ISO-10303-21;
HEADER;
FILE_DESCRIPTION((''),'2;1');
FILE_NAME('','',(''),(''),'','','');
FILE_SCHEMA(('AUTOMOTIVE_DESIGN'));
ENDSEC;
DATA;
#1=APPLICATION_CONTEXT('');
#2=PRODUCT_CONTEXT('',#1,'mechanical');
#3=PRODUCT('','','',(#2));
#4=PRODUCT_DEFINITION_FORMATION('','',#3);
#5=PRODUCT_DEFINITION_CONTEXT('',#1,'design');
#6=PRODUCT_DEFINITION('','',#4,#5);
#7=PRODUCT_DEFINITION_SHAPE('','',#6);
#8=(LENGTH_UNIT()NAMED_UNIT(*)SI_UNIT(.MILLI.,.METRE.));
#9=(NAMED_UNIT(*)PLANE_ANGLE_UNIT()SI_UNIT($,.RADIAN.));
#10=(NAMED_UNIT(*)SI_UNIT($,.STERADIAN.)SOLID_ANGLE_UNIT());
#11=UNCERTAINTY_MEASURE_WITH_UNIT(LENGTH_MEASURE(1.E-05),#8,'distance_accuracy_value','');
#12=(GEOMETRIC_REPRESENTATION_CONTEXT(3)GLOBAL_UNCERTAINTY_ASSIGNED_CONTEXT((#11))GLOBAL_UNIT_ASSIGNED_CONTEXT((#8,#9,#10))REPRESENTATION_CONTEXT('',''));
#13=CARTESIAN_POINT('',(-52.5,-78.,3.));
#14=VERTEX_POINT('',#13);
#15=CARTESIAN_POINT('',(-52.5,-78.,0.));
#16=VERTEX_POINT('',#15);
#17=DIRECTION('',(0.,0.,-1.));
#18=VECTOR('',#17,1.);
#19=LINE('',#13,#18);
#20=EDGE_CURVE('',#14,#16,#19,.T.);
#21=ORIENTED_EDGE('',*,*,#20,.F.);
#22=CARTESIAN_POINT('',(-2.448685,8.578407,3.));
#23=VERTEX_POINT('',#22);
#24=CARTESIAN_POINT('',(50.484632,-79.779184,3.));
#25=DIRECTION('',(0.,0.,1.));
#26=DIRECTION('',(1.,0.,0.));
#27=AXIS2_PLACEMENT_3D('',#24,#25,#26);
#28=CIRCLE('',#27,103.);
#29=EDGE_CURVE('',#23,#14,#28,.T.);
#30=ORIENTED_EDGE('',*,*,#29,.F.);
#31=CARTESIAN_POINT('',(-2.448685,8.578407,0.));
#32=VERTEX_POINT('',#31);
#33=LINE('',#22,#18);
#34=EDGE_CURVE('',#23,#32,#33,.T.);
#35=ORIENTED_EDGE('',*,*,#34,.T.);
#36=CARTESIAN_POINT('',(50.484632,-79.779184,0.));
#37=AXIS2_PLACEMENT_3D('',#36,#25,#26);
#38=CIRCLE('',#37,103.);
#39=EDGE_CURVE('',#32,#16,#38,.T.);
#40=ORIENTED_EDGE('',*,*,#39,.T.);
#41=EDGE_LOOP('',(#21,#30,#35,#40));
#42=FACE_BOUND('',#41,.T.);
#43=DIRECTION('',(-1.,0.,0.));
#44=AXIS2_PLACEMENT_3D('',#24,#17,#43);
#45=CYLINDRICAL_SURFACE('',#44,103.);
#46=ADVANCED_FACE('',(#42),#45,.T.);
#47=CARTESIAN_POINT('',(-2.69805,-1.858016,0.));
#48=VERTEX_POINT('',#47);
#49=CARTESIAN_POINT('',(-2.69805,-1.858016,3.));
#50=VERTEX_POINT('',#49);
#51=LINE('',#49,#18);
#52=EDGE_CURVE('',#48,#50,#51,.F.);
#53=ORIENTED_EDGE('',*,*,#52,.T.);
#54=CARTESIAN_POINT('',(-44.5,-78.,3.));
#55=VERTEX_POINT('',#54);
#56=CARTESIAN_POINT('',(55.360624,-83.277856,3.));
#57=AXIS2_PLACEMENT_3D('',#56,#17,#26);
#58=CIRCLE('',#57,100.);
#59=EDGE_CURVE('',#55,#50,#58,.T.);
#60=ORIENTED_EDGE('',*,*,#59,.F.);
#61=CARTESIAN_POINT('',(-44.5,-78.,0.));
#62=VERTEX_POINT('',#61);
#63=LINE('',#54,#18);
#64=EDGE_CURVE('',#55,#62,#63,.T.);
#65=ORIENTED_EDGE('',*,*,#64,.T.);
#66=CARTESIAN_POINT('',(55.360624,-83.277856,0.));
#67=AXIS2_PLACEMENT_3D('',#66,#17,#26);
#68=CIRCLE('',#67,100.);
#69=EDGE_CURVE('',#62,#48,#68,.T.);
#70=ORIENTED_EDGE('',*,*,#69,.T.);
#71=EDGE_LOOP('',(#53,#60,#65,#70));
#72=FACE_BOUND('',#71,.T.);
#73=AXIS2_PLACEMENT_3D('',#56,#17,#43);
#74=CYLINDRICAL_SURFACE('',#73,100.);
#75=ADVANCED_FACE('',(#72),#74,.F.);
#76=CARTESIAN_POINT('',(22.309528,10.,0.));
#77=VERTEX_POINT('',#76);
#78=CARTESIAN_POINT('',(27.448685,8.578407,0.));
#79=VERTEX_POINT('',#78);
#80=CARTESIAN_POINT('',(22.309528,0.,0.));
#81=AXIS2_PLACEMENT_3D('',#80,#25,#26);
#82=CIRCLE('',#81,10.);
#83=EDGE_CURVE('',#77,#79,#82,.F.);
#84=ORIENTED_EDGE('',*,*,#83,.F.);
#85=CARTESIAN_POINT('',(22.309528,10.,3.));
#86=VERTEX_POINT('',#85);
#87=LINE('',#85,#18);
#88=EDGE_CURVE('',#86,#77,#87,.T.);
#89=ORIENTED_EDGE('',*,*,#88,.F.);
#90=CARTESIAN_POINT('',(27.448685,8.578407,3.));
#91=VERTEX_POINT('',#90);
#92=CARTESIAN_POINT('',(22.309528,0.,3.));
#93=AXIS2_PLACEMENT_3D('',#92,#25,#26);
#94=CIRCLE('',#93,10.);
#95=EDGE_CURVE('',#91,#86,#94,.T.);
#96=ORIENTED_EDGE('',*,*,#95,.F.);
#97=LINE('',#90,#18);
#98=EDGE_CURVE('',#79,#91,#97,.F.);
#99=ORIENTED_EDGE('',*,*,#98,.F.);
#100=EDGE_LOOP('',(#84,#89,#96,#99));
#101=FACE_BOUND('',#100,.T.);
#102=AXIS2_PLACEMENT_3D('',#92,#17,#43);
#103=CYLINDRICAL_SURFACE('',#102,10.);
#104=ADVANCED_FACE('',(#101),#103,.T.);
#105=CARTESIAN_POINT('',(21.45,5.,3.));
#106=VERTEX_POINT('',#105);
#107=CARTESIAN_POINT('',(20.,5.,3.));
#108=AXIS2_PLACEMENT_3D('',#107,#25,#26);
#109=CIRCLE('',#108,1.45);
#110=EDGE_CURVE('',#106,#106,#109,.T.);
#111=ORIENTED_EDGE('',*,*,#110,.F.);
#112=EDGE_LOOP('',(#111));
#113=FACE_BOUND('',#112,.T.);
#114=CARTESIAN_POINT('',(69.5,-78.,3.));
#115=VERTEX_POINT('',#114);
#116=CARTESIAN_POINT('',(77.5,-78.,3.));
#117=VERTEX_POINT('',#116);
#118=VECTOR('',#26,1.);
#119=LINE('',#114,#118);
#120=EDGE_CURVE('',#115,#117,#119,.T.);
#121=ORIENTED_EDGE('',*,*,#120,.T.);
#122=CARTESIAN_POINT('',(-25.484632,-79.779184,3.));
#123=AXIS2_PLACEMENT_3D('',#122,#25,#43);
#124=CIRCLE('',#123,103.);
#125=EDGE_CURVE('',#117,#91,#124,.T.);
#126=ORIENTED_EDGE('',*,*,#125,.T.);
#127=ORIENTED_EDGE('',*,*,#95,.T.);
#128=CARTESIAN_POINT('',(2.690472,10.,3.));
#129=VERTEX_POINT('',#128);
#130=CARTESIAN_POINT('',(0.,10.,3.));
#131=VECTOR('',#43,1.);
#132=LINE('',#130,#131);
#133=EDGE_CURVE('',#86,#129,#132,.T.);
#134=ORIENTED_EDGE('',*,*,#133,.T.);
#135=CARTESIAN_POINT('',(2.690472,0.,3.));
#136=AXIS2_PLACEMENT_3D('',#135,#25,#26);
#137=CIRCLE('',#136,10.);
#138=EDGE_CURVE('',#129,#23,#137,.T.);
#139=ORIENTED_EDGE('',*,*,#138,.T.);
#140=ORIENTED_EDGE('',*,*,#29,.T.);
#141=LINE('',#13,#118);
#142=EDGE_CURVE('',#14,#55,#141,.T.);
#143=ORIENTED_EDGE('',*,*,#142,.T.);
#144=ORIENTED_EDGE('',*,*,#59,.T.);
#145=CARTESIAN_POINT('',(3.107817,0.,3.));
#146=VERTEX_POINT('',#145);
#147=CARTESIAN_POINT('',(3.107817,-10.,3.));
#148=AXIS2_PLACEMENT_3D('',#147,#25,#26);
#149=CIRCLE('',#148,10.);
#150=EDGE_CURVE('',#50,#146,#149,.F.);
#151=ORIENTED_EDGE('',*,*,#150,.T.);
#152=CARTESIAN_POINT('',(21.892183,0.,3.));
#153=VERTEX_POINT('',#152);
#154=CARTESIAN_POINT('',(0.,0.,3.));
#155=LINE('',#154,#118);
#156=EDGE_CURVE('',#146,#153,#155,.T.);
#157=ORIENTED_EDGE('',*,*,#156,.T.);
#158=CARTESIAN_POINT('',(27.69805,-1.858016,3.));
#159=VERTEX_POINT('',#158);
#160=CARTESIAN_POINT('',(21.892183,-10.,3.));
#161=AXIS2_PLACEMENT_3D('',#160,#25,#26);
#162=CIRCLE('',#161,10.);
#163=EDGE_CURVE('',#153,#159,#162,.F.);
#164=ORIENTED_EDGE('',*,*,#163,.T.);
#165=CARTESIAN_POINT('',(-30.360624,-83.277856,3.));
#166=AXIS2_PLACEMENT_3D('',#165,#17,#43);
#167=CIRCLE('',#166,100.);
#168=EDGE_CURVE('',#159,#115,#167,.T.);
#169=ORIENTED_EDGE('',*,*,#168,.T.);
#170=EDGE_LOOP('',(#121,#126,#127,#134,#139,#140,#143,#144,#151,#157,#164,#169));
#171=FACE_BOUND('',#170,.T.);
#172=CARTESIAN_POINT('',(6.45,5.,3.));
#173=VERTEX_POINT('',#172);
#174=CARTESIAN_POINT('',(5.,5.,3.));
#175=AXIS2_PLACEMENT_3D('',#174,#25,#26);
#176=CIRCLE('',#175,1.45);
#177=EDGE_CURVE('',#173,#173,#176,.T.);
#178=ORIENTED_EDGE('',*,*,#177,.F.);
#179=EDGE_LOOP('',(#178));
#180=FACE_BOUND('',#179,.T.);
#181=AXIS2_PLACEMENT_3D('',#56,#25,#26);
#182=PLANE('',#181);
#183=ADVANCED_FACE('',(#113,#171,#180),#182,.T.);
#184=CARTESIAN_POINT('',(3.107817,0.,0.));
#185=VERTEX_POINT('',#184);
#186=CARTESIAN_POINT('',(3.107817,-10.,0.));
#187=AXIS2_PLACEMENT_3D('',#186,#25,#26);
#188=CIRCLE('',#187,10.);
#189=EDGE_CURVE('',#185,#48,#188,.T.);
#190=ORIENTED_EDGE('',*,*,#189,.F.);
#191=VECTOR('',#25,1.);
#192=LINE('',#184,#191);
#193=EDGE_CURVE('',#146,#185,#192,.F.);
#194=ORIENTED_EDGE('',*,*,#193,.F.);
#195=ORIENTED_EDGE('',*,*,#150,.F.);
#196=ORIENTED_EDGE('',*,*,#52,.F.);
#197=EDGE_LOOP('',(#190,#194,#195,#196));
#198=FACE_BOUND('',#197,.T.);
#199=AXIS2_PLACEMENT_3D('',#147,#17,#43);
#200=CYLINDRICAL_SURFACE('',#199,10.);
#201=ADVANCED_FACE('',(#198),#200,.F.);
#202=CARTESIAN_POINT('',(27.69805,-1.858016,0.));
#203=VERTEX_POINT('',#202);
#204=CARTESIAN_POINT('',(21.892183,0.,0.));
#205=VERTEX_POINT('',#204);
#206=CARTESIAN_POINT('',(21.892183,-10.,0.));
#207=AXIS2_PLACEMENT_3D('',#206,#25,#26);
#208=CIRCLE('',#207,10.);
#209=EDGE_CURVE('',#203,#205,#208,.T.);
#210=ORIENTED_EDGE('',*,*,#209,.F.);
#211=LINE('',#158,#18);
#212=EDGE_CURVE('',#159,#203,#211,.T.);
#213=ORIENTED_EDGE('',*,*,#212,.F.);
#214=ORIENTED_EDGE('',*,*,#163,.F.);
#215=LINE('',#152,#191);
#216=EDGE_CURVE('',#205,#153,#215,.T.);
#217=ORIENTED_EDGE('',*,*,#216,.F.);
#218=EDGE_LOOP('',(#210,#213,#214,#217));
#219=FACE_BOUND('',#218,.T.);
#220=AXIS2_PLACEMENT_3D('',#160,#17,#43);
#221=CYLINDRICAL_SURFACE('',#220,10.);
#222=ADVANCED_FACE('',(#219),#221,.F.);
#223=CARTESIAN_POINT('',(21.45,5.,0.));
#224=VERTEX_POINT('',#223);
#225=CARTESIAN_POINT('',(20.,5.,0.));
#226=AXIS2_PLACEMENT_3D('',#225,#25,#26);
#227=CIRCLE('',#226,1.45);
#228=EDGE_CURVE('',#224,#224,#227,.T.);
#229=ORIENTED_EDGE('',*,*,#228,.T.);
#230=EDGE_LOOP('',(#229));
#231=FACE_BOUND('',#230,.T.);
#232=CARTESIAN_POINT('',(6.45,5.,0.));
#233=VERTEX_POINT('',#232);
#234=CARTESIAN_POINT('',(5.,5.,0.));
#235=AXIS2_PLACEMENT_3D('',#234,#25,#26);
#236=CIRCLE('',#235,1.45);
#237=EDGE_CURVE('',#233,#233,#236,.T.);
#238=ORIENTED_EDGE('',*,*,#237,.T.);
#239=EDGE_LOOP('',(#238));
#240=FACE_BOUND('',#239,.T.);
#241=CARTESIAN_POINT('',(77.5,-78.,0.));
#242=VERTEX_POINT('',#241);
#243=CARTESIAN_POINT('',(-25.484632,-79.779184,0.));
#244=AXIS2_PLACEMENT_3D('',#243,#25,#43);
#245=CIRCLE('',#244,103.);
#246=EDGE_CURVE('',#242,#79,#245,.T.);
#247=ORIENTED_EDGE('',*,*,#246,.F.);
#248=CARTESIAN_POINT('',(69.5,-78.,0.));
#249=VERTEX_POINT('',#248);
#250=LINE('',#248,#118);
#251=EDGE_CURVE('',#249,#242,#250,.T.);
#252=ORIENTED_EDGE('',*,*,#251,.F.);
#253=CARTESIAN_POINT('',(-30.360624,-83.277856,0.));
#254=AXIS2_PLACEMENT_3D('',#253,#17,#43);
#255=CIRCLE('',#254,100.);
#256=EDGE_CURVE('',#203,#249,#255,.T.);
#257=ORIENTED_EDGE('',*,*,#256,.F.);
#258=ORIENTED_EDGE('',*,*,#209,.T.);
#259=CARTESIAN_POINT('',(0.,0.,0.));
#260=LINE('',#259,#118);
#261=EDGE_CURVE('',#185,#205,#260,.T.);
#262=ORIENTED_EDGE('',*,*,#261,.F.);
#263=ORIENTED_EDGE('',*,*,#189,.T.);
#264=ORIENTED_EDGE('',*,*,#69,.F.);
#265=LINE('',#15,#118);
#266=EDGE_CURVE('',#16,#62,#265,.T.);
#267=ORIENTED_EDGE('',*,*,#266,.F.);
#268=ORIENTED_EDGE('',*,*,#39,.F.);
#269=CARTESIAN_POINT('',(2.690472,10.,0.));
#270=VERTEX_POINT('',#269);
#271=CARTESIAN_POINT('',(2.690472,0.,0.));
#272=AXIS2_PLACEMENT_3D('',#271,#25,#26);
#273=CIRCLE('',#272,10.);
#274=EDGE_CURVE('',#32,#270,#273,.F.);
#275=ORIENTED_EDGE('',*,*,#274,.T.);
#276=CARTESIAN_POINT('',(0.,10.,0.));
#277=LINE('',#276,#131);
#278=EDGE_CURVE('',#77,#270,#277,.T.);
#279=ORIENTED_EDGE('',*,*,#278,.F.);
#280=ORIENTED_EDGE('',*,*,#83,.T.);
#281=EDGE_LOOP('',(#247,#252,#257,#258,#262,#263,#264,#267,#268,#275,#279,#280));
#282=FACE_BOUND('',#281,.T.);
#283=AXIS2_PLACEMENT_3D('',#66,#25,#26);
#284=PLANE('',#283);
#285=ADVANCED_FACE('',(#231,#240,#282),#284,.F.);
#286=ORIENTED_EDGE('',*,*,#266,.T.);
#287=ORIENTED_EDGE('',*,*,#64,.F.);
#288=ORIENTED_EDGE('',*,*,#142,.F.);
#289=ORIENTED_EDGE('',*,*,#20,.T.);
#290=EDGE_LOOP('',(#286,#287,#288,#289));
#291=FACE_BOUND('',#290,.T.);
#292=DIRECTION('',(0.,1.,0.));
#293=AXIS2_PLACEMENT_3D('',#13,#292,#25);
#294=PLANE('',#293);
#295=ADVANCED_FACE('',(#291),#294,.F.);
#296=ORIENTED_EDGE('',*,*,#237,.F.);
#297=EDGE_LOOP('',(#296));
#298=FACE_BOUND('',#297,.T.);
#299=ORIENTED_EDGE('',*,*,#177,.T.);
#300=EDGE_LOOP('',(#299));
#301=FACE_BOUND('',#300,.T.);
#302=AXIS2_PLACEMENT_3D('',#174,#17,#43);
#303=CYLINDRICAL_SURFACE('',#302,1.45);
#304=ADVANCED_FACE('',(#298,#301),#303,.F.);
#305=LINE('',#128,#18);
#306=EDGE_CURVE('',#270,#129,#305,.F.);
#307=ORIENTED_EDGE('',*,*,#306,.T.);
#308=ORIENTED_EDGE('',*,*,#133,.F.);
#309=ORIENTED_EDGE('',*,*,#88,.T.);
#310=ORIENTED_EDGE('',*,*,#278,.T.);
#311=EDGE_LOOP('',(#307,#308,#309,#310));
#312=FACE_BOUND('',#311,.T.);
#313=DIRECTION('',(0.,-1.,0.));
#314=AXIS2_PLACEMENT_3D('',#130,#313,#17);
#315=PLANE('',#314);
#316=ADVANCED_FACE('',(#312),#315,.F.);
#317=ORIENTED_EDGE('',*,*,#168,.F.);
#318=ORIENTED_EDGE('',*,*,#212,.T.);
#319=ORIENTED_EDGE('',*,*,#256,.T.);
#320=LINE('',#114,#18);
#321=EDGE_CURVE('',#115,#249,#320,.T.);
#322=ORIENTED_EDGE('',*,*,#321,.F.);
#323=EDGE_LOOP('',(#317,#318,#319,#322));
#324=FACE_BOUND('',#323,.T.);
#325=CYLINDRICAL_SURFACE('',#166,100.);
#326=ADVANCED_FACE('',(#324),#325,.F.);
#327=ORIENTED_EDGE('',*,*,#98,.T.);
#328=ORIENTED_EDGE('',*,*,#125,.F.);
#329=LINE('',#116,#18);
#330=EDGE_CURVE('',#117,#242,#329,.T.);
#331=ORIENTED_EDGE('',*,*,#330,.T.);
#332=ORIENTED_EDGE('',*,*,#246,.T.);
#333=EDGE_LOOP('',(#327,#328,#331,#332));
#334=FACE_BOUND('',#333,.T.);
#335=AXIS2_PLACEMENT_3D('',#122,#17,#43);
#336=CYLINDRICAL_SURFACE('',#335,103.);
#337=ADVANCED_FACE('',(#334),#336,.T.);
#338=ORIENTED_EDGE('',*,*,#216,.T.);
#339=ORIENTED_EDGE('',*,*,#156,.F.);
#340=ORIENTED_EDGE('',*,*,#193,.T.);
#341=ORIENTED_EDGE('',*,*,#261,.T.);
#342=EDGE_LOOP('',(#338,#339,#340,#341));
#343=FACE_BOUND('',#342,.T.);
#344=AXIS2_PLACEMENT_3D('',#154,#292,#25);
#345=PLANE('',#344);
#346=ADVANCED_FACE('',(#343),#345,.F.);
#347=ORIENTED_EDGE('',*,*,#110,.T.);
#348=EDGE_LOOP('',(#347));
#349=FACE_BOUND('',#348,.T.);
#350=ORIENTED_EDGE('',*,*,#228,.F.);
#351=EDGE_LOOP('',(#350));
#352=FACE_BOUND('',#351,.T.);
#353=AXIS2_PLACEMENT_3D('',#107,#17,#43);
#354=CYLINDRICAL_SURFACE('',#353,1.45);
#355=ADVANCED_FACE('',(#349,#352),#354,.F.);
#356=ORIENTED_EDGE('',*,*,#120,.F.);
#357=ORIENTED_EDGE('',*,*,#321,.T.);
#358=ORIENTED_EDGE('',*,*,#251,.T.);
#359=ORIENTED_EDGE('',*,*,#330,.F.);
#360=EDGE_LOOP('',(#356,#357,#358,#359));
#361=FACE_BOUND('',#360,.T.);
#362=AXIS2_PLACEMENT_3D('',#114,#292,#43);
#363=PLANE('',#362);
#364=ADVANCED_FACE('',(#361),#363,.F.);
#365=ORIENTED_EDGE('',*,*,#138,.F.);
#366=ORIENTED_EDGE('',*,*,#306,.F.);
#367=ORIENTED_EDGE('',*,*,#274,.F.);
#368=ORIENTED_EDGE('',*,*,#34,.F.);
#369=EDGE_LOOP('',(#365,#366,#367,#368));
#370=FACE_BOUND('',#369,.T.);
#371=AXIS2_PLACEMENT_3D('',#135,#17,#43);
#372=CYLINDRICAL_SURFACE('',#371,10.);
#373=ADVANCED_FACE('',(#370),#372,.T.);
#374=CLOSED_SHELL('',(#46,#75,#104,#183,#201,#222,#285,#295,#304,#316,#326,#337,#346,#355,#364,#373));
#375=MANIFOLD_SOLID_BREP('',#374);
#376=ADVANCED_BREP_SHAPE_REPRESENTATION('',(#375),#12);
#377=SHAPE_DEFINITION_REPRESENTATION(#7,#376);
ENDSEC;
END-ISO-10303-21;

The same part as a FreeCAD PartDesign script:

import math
import FreeCAD as App
import Part
import Sketcher

V = App.Vector
Q = App.Units.Quantity


def edges_at(feature, points):
    """Names of the edges that pass closest to the given points."""
    edges = feature.Shape.Edges
    near = lambda p: min(range(len(edges)), key=lambda i: edges[i].distToShape(Part.Vertex(*p))[0])
    return sorted({f"Edge{near(p) + 1}" for p in points})

doc = App.newDocument("Part")
params = doc.addObject("Spreadsheet::Sheet", "Params")
for row, (alias, value) in enumerate([
    ("sketch1_radius", "100 mm"),
    ("sketch1_radius2", "103 mm"),
    ("sketch1_diameter", "2.9 mm"),
    ("sketch1_width", "25 mm"),
    ("sketch1_width2", "8 mm"),
    ("pad1_length", "3 mm"),
    ("fillet_radius", "10 mm"),
], start=1):
    params.set(f"A{row}", alias)
    params.set(f"B{row}", "=" + value)
    params.setAlias(f"B{row}", alias)

body = doc.addObject("PartDesign::Body", "Body")

sketch1 = body.newObject("Sketcher::SketchObject", "Sketch")
sketch1.AttachmentSupport = (doc.getObject("XY_Plane"), [""])
sketch1.MapMode = "FlatFace"
sketch1.addGeometry([
    Part.LineSegment(V(0, 0, 0), V(25, 0, 0)),
    Part.ArcOfCircle(Part.Circle(V(-30.4, -83.3, 0), V(0, 0, 1), 100), math.radians(3), math.radians(56)),
    Part.LineSegment(V(69.5, -78, 0), V(77.5, -78, 0)),
    Part.ArcOfCircle(Part.Circle(V(-25.5, -79.8, 0), V(0, 0, 1), 103), math.radians(1), math.radians(61)),
    Part.LineSegment(V(25, 10, 0), V(0, 10, 0)),
    Part.ArcOfCircle(Part.Circle(V(50.5, -79.8, 0), V(0, 0, 1), 103), math.radians(119), math.radians(179)),
    Part.LineSegment(V(-52.5, -78, 0), V(-44.5, -78, 0)),
    Part.ArcOfCircle(Part.Circle(V(55.4, -83.3, 0), V(0, 0, 1), 100), math.radians(124), math.radians(177)),
    Part.Circle(V(5, 5, 0), V(0, 0, 1), 1.4),
    Part.Circle(V(20, 5, 0), V(0, 0, 1), 1.4),
], False)
sketch1.addConstraint([
    Sketcher.Constraint("Coincident", 0, 2, 1, 2),
    Sketcher.Constraint("Coincident", 1, 1, 2, 1),
    Sketcher.Constraint("Coincident", 2, 2, 3, 1),
    Sketcher.Constraint("Coincident", 3, 2, 4, 1),
    Sketcher.Constraint("Coincident", 4, 2, 5, 1),
    Sketcher.Constraint("Coincident", 5, 2, 6, 1),
    Sketcher.Constraint("Coincident", 6, 2, 7, 2),
    Sketcher.Constraint("Coincident", 7, 1, 0, 1),
    Sketcher.Constraint("Horizontal", 0),
    Sketcher.Constraint("Horizontal", 2),
    Sketcher.Constraint("Horizontal", 4),
    Sketcher.Constraint("Horizontal", 6),
    Sketcher.Constraint("Coincident", 7, 1, -1, 1),
    Sketcher.Constraint("Equal", 3, 5),
    Sketcher.Constraint("Equal", 1, 7),
    Sketcher.Constraint("Equal", 8, 9),
    Sketcher.Constraint("PointOnObject", 4, 2, -2),
    Sketcher.Constraint("Horizontal", 3, 3, 5, 3),
    Sketcher.Constraint("Horizontal", 1, 3, 7, 3),
    Sketcher.Constraint("Horizontal", 8, 3, 9, 3),
    Sketcher.Constraint("Horizontal", 2, 2, 5, 2),
    Sketcher.Constraint("Vertical", 0, 2, 3, 2),
    Sketcher.Constraint("Radius", 1, Q("100 mm")),
    Sketcher.Constraint("Radius", 3, Q("103 mm")),
    Sketcher.Constraint("Diameter", 8, Q("2.9 mm")),
    Sketcher.Constraint("DistanceX", 0, 1, 0, 2, Q("25 mm")),
    Sketcher.Constraint("DistanceX", 2, 1, 2, 2, Q("8 mm")),
    Sketcher.Constraint("DistanceX", -1, 1, 8, 3, Q("5 mm")),
    Sketcher.Constraint("DistanceY", -1, 1, 8, 3, Q("5 mm")),
    Sketcher.Constraint("DistanceX", -1, 1, 9, 3, Q("20 mm")),
    Sketcher.Constraint("DistanceY", 1, 1, -1, 1, Q("78 mm")),
    Sketcher.Constraint("DistanceY", -1, 1, 3, 2, Q("10 mm")),
    Sketcher.Constraint("DistanceX", -1, 1, 1, 1, Q("69.5 mm")),
])
sketch1.setExpression("Constraints[22]", "Params.sketch1_radius")
sketch1.setExpression("Constraints[23]", "Params.sketch1_radius2")
sketch1.setExpression("Constraints[24]", "Params.sketch1_diameter")
sketch1.setExpression("Constraints[25]", "Params.sketch1_width")
sketch1.setExpression("Constraints[26]", "Params.sketch1_width2")
pad1 = body.newObject("PartDesign::Pad", "Pad")
pad1.Profile = sketch1
pad1.setExpression("Length", "Params.pad1_length")
doc.recompute()

fillet = body.newObject("PartDesign::Fillet", "Fillet")
fillet.Base = (pad1, edges_at(pad1, [
    (0, 10, 1.5),
    (25, 10, 1.5),
    (25, 0, 1.5),
    (0, 0, 1.5),
]))
fillet.setExpression("Radius", "Params.fillet_radius")

doc.recompute()
